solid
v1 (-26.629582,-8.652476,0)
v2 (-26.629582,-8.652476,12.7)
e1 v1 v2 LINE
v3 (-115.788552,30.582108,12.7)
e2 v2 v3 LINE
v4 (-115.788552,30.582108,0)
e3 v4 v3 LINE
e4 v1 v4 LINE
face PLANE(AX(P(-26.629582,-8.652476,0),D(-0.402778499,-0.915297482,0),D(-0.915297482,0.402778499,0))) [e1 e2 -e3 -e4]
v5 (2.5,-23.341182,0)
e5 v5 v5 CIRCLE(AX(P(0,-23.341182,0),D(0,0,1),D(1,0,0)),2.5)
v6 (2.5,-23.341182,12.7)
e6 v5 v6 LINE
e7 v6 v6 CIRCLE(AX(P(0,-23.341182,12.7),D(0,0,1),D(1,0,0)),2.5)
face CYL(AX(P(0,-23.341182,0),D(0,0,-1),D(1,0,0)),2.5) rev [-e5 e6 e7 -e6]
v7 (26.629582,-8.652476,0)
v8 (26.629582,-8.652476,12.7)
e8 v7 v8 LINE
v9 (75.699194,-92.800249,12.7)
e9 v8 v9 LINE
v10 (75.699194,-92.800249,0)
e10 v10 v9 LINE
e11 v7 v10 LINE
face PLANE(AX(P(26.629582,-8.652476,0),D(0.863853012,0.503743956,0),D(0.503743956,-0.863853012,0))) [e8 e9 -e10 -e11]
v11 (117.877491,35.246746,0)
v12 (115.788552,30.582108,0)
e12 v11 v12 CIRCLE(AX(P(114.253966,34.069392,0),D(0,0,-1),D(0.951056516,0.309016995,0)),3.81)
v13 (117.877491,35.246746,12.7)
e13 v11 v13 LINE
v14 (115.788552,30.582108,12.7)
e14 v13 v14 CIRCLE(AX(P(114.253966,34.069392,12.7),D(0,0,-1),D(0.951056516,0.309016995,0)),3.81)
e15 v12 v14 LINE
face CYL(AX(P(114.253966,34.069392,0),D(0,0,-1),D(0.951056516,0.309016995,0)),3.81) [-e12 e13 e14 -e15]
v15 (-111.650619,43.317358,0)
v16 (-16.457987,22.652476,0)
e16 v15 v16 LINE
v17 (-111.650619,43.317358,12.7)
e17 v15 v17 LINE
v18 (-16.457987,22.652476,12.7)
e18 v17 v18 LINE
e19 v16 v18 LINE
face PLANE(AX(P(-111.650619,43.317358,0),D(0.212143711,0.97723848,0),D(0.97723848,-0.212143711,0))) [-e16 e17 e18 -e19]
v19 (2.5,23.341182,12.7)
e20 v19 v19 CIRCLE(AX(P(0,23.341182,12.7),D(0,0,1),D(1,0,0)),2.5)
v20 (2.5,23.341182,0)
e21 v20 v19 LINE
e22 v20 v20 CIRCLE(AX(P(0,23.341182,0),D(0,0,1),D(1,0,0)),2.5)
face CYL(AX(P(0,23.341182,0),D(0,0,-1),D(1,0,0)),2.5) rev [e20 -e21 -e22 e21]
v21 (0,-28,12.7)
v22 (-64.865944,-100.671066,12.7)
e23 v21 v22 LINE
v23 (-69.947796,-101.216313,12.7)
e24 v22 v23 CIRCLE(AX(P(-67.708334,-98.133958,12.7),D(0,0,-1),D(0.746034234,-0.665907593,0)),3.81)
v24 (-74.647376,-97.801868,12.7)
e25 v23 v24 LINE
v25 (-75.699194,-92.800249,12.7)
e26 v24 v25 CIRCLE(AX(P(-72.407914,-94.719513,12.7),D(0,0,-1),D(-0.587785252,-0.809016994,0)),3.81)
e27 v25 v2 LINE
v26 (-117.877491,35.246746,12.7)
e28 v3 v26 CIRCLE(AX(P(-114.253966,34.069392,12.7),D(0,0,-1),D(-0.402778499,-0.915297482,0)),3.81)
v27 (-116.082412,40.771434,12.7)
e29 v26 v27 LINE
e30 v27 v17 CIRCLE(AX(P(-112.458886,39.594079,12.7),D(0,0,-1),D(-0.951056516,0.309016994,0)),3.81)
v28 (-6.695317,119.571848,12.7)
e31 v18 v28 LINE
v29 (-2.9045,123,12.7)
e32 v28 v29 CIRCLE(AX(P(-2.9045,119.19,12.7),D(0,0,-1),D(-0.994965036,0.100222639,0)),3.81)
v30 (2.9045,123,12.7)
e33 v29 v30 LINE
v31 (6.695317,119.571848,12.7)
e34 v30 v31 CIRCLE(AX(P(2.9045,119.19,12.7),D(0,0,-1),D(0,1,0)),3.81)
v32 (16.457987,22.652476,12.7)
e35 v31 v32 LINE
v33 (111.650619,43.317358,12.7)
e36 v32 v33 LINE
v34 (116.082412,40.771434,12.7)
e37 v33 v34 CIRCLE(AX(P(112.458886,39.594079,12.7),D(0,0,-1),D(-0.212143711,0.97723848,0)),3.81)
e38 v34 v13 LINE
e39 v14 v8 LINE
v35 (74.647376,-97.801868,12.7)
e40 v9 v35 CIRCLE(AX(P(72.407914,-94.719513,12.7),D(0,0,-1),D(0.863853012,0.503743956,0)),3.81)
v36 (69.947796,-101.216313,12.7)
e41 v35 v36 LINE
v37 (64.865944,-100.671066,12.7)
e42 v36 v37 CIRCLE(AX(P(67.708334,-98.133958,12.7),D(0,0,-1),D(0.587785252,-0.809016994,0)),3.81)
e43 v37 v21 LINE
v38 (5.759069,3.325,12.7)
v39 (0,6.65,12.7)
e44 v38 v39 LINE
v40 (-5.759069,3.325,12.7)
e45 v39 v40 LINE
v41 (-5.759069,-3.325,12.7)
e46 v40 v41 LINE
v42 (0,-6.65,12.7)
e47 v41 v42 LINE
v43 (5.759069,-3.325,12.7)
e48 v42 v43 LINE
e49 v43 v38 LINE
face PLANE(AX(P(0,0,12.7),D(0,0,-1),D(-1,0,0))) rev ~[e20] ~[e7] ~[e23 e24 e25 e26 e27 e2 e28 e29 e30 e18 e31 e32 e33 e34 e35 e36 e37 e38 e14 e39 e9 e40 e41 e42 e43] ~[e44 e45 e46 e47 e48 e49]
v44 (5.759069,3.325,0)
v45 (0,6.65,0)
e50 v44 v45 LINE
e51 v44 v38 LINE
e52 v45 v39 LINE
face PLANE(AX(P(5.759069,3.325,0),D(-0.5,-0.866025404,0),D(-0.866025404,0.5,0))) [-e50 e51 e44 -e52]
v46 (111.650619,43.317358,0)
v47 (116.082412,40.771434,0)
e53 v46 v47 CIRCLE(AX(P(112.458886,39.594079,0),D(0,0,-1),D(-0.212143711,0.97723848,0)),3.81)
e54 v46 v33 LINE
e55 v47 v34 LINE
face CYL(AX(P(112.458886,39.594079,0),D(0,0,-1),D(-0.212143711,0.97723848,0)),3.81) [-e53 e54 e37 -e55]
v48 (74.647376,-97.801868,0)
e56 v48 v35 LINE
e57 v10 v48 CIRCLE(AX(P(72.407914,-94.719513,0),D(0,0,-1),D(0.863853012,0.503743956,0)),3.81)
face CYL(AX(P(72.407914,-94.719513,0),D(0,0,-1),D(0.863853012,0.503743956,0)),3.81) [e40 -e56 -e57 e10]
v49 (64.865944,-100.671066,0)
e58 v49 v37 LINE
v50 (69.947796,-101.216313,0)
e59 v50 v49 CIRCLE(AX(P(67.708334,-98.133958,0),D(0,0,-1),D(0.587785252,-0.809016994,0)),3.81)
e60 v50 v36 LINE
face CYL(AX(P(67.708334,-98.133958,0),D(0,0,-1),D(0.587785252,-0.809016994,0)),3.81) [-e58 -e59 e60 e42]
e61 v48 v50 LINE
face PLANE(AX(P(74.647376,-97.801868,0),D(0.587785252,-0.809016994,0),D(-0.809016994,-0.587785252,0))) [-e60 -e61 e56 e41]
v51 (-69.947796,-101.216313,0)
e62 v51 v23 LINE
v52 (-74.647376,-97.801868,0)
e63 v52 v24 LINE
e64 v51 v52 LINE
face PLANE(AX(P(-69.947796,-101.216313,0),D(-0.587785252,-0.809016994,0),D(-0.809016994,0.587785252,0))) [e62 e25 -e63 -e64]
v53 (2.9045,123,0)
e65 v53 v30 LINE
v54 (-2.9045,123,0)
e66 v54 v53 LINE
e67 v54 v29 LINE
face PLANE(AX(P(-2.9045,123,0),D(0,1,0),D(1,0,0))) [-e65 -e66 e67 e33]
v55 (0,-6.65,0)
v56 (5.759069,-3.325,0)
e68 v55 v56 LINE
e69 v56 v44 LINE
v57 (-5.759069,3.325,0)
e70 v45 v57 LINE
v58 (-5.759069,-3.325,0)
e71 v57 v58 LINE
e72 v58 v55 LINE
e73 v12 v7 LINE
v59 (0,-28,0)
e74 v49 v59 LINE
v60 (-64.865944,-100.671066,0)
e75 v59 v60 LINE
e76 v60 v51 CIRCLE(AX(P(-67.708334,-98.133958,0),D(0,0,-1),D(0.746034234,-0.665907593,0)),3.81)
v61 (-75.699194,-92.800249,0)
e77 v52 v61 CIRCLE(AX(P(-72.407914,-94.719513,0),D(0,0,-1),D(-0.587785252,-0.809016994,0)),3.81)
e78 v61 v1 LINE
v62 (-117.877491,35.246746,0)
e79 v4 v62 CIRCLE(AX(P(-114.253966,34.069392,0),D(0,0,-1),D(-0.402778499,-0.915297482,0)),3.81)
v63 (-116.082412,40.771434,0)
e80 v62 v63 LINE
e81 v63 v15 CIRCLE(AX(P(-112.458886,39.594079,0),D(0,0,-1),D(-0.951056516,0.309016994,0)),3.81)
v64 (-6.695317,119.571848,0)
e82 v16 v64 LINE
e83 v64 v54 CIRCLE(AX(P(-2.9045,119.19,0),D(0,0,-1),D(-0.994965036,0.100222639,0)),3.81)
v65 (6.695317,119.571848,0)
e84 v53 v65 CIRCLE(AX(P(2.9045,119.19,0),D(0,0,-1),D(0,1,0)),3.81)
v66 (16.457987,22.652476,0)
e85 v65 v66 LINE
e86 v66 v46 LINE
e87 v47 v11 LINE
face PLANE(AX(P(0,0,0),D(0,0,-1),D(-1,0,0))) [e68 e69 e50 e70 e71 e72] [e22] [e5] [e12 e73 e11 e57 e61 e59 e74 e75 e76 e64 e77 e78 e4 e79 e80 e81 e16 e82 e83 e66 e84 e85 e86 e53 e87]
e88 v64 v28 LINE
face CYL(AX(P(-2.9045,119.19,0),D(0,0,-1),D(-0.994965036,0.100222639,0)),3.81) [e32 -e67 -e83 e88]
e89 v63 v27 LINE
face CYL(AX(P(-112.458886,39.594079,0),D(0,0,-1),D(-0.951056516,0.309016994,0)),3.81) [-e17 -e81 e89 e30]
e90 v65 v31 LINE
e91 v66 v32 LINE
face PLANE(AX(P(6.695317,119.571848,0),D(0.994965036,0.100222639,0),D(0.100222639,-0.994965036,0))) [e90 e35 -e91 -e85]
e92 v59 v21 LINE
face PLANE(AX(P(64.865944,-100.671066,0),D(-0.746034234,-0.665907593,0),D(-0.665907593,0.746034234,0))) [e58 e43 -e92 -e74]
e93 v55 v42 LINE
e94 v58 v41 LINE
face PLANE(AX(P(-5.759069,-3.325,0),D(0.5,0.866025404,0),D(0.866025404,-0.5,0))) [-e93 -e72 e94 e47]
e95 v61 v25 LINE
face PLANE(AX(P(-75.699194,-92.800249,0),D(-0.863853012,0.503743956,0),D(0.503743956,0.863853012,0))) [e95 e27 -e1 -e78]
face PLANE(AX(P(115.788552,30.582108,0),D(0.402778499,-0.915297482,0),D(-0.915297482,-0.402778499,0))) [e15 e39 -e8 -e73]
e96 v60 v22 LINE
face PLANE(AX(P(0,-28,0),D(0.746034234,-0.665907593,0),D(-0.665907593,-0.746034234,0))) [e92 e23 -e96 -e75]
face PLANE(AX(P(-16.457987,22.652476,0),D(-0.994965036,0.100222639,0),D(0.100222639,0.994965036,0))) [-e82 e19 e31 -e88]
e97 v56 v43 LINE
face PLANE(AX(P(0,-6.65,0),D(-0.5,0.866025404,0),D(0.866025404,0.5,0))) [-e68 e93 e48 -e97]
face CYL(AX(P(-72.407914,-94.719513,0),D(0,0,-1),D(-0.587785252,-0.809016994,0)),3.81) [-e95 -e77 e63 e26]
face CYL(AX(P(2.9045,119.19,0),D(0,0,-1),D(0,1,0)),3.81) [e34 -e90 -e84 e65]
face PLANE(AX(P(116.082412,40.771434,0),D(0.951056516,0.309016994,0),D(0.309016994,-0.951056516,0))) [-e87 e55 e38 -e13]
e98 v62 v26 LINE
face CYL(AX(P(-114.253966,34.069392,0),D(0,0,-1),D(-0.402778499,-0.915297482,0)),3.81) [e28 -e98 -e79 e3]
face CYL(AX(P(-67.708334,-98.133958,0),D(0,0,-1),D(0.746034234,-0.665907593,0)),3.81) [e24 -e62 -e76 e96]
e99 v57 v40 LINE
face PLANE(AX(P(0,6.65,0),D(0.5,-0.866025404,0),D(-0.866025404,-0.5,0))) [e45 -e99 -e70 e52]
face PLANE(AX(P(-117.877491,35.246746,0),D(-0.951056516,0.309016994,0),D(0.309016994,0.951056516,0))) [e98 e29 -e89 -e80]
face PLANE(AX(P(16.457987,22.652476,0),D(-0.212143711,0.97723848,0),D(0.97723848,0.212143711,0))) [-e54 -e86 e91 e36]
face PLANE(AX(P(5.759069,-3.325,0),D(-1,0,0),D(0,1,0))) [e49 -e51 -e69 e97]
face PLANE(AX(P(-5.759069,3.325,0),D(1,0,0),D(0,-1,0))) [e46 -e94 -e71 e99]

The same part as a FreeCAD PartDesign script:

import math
import FreeCAD as App
import Part
import Sketcher
Q = App.Units.Quantity


def add_polygon(sketch, points):
    """Adds a closed chain of lines whose ends are joined by coincident constraints."""
    first, n = sketch.GeometryCount, len(points)
    for a, b in zip(points, points[1:] + points[:1]):
        sketch.addGeometry(Part.LineSegment(App.Vector(*a, 0), App.Vector(*b, 0)), False)
    for i in range(n):
        sketch.addConstraint(Sketcher.Constraint("Coincident", first + i, 2, first + (i + 1) % n, 1))

doc = App.newDocument("Part")
params = doc.addObject("Spreadsheet::Sheet", "Params")
for row, (alias, value) in enumerate([
    ("sketch1_radius", "0.15 in"),
    ("pad1_length", "0.5 in"),
], start=1):
    params.set(f"A{row}", alias)
    params.set(f"B{row}", "=" + value)
    params.setAlias(f"B{row}", alias)

body = doc.addObject("PartDesign::Body", "Body")

# Sketch on XY plane
sketch1 = doc.addObject("Sketcher::SketchObject", "Sketch")
body.addObject(sketch1)
sketch1.AttachmentSupport = (doc.XY_Plane, [""])
sketch1.MapMode = "FlatFace"
sketch1.addGeometry(Part.LineSegment(App.Vector(2.9045, 123, 0), App.Vector(-2.9045, 123, 0)), False)  # 0
sketch1.addGeometry(Part.ArcOfCircle(Part.Circle(App.Vector(-2.9045, 119.19, 0), App.Vector(0, 0, 1), 3.81), math.radians(90), math.radians(174.248009)), False)  # 1
sketch1.addGeometry(Part.LineSegment(App.Vector(-6.695317, 119.571848, 0), App.Vector(-16.457987, 22.652476, 0)), False)  # 2
sketch1.addGeometry(Part.LineSegment(App.Vector(-16.457987, 22.652476, 0), App.Vector(-111.650619, 43.317358, 0)), False)  # 3
sketch1.addGeometry(Part.ArcOfCircle(Part.Circle(App.Vector(-112.458886, 39.594079, 0), App.Vector(0, 0, 1), 3.81), math.radians(77.751991), math.radians(162)), False)  # 4
sketch1.addGeometry(Part.LineSegment(App.Vector(-116.082412, 40.771434, 0), App.Vector(-117.877491, 35.246746, 0)), False)  # 5
sketch1.addGeometry(Part.ArcOfCircle(Part.Circle(App.Vector(-114.253966, 34.069392, 0), App.Vector(0, 0, 1), 3.81), math.radians(162), math.radians(246.248009)), False)  # 6
sketch1.addGeometry(Part.LineSegment(App.Vector(-115.788552, 30.582108, 0), App.Vector(-26.629582, -8.652476, 0)), False)  # 7
sketch1.addGeometry(Part.LineSegment(App.Vector(-26.629582, -8.652476, 0), App.Vector(-75.699194, -92.800249, 0)), False)  # 8
sketch1.addGeometry(Part.ArcOfCircle(Part.Circle(App.Vector(-72.407914, -94.719513, 0), App.Vector(0, 0, 1), 3.81), math.radians(149.751991), math.radians(234)), False)  # 9
sketch1.addGeometry(Part.LineSegment(App.Vector(-74.647376, -97.801868, 0), App.Vector(-69.947796, -101.216313, 0)), False)  # 10
sketch1.addGeometry(Part.ArcOfCircle(Part.Circle(App.Vector(-67.708334, -98.133958, 0), App.Vector(0, 0, 1), 3.81), math.radians(-126), math.radians(-41.751991)), False)  # 11
sketch1.addGeometry(Part.LineSegment(App.Vector(-64.865944, -100.671066, 0), App.Vector(0, -28, 0)), False)  # 12
sketch1.addGeometry(Part.LineSegment(App.Vector(0, -28, 0), App.Vector(64.865944, -100.671066, 0)), False)  # 13
sketch1.addGeometry(Part.ArcOfCircle(Part.Circle(App.Vector(67.708334, -98.133958, 0), App.Vector(0, 0, 1), 3.81), math.radians(-138.248009), math.radians(-54)), False)  # 14
sketch1.addGeometry(Part.LineSegment(App.Vector(69.947796, -101.216313, 0), App.Vector(74.647376, -97.801868, 0)), False)  # 15
sketch1.addGeometry(Part.ArcOfCircle(Part.Circle(App.Vector(72.407914, -94.719513, 0), App.Vector(0, 0, 1), 3.81), math.radians(-54), math.radians(30.248009)), False)  # 16
sketch1.addGeometry(Part.LineSegment(App.Vector(75.699194, -92.800249, 0), App.Vector(26.629582, -8.652476, 0)), False)  # 17
sketch1.addGeometry(Part.LineSegment(App.Vector(26.629582, -8.652476, 0), App.Vector(115.788552, 30.582108, 0)), False)  # 18
sketch1.addGeometry(Part.ArcOfCircle(Part.Circle(App.Vector(114.253966, 34.069392, 0), App.Vector(0, 0, 1), 3.81), math.radians(-66.248009), math.radians(18)), False)  # 19
sketch1.addGeometry(Part.LineSegment(App.Vector(117.877491, 35.246746, 0), App.Vector(116.082412, 40.771434, 0)), False)  # 20
sketch1.addGeometry(Part.ArcOfCircle(Part.Circle(App.Vector(112.458886, 39.594079, 0), App.Vector(0, 0, 1), 3.81), math.radians(18), math.radians(102.248009)), False)  # 21
sketch1.addGeometry(Part.LineSegment(App.Vector(111.650619, 43.317358, 0), App.Vector(16.457987, 22.652476, 0)), False)  # 22
sketch1.addGeometry(Part.LineSegment(App.Vector(16.457987, 22.652476, 0), App.Vector(6.695317, 119.571848, 0)), False)  # 23
sketch1.addGeometry(Part.ArcOfCircle(Part.Circle(App.Vector(2.9045, 119.19, 0), App.Vector(0, 0, 1), 3.81), math.radians(5.751991), math.radians(90)), False)  # 24
sketch1.addGeometry(Part.Circle(App.Vector(0, -23.341182, 0), App.Vector(0, 0, 1), 2.5), False)  # 25
add_polygon(sketch1, [(0, -6.65), (-5.759069, -3.325), (-5.759069, 3.325), (0, 6.65), (5.759069, 3.325), (5.759069, -3.325)])  # lines 26-31
sketch1.addGeometry(Part.Circle(App.Vector(0, 23.341182, 0), App.Vector(0, 0, 1), 2.5), False)  # 32
sketch1.addConstraint(Sketcher.Constraint("Tangent", 0, 2, 1, 1))
sketch1.addConstraint(Sketcher.Constraint("Tangent", 1, 2, 2, 1))
sketch1.addConstraint(Sketcher.Constraint("Coincident", 2, 2, 3, 1))
sketch1.addConstraint(Sketcher.Constraint("Tangent", 3, 2, 4, 1))
sketch1.addConstraint(Sketcher.Constraint("Tangent", 4, 2, 5, 1))
sketch1.addConstraint(Sketcher.Constraint("Tangent", 5, 2, 6, 1))
sketch1.addConstraint(Sketcher.Constraint("Tangent", 6, 2, 7, 1))
sketch1.addConstraint(Sketcher.Constraint("Coincident", 7, 2, 8, 1))
sketch1.addConstraint(Sketcher.Constraint("Tangent", 8, 2, 9, 1))
sketch1.addConstraint(Sketcher.Constraint("Tangent", 9, 2, 10, 1))
sketch1.addConstraint(Sketcher.Constraint("Tangent", 10, 2, 11, 1))
sketch1.addConstraint(Sketcher.Constraint("Tangent", 11, 2, 12, 1))
sketch1.addConstraint(Sketcher.Constraint("Coincident", 12, 2, 13, 1))
sketch1.addConstraint(Sketcher.Constraint("Tangent", 13, 2, 14, 1))
sketch1.addConstraint(Sketcher.Constraint("Tangent", 14, 2, 15, 1))
sketch1.addConstraint(Sketcher.Constraint("Tangent", 15, 2, 16, 1))
sketch1.addConstraint(Sketcher.Constraint("Tangent", 16, 2, 17, 1))
sketch1.addConstraint(Sketcher.Constraint("Coincident", 17, 2, 18, 1))
sketch1.addConstraint(Sketcher.Constraint("Tangent", 18, 2, 19, 1))
sketch1.addConstraint(Sketcher.Constraint("Tangent", 19, 2, 20, 1))
sketch1.addConstraint(Sketcher.Constraint("Tangent", 20, 2, 21, 1))
sketch1.addConstraint(Sketcher.Constraint("Tangent", 21, 2, 22, 1))
sketch1.addConstraint(Sketcher.Constraint("Coincident", 22, 2, 23, 1))
sketch1.addConstraint(Sketcher.Constraint("Tangent", 23, 2, 24, 1))
sketch1.addConstraint(Sketcher.Constraint("Tangent", 24, 2, 0, 1))
sketch1.addConstraint(Sketcher.Constraint("Horizontal", 0))
sketch1.addConstraint(Sketcher.Constraint("Vertical", 27))
sketch1.addConstraint(Sketcher.Constraint("Vertical", 30))
sketch1.addConstraint(Sketcher.Constraint("Equal", 1, 4))
sketch1.addConstraint(Sketcher.Constraint("Equal", 4, 6))
sketch1.addConstraint(Sketcher.Constraint("Equal", 6, 9))
sketch1.addConstraint(Sketcher.Constraint("Equal", 9, 11))
sketch1.addConstraint(Sketcher.Constraint("Equal", 11, 14))
sketch1.addConstraint(Sketcher.Constraint("Equal", 14, 16))
sketch1.addConstraint(Sketcher.Constraint("Equal", 16, 19))
sketch1.addConstraint(Sketcher.Constraint("Equal", 19, 21))
sketch1.addConstraint(Sketcher.Constraint("Equal", 21, 24))
sketch1.addConstraint(Sketcher.Constraint("Equal", 25, 32))
sketch1.addConstraint(Sketcher.Constraint("Symmetric", 25, 3, 32, 3, -1, 1))
sketch1.addConstraint(Sketcher.Constraint("Symmetric", 26, 2, 29, 2, -1, 1))
sketch1.addConstraint(Sketcher.Constraint("Symmetric", 28, 2, 31, 2, -1, 1))
sketch1.addConstraint(Sketcher.Constraint("Symmetric", 11, 3, 14, 3, -2))
sketch1.addConstraint(Sketcher.Constraint("Symmetric", 9, 3, 16, 3, -2))
sketch1.addConstraint(Sketcher.Constraint("Symmetric", 6, 3, 19, 3, -2))
sketch1.addConstraint(Sketcher.Constraint("Symmetric", 4, 3, 21, 3, -2))
sketch1.addConstraint(Sketcher.Constraint("Symmetric", 7, 2, 17, 2, -2))
sketch1.addConstraint(Sketcher.Constraint("Symmetric", 2, 2, 22, 2, -2))
sketch1.addConstraint(Sketcher.Constraint("PointOnObject", 25, 3, -2))
sketch1.addConstraint(Sketcher.Constraint("PointOnObject", 12, 2, -2))
sketch1.addConstraint(Sketcher.Constraint("PointOnObject", 28, 2, -2))
sketch1.addConstraint(Sketcher.Constraint("Parallel", 28, 31))
sketch1.addConstraint(Sketcher.Constraint("Horizontal", 1, 2, 23, 2))
sketch1.addConstraint(Sketcher.Constraint("Horizontal", 27, 2, 29, 2))
sketch1.addConstraint(Sketcher.Constraint("Equal", 2, 3))
sketch1.addConstraint(Sketcher.Constraint("Equal", 3, 7))
sketch1.addConstraint(Sketcher.Constraint("Equal", 7, 8))
sketch1.addConstraint(Sketcher.Constraint("Equal", 5, 10))
sketch1.addConstraint(Sketcher.Constraint("Equal", 8, 12))
sketch1.addConstraint(Sketcher.Constraint("Radius", 1, Q("0.15 in")))
sketch1.addConstraint(Sketcher.Constraint("Angle", 5, Q("-108 deg")))
sketch1.addConstraint(Sketcher.Constraint("Angle", 10, Q("-36 deg")))
sketch1.addConstraint(Sketcher.Constraint("Angle", 26, Q("150 deg")))
sketch1.addConstraint(Sketcher.Constraint("Diameter", 25, 5.0))
sketch1.addConstraint(Sketcher.Constraint("DistanceX", 0, 2, 0, 1, 5.809001))
sketch1.addConstraint(Sketcher.Constraint("DistanceY", 27, 1, 27, 2, 6.65))
sketch1.addConstraint(Sketcher.Constraint("Distance", 5, 5.809001))
sketch1.addConstraint(Sketcher.Constraint("Distance", 26, 6.65))
sketch1.addConstraint(Sketcher.Constraint("DistanceY", -1, 1, 1, 3, 119.19))
sketch1.addConstraint(Sketcher.Constraint("DistanceY", 12, 2, -1, 1, 28.0))
sketch1.addConstraint(Sketcher.Constraint("DistanceX", 6, 3, 14, 3, 181.9623))
sketch1.addConstraint(Sketcher.Constraint("DistanceX", 4, 3, 2, 2, 96.000899))
sketch1.addConstraint(Sketcher.Constraint("DistanceX", 3, 2, 1, 2, 104.955302))
sketch1.addConstraint(Sketcher.Constraint("DistanceY", -1, 1, 4, 3, 39.594079))
sketch1.addConstraint(Sketcher.Constraint("DistanceY", 9, 3, 25, 3, 71.378331))
sketch1.setExpression("Constraints[64]", "Params.sketch1_radius")
pad1 = doc.addObject("PartDesign::Pad", "Pad")
body.addObject(pad1)
pad1.Profile = sketch1
pad1.setExpression("Length", "Params.pad1_length")

doc.recompute()
